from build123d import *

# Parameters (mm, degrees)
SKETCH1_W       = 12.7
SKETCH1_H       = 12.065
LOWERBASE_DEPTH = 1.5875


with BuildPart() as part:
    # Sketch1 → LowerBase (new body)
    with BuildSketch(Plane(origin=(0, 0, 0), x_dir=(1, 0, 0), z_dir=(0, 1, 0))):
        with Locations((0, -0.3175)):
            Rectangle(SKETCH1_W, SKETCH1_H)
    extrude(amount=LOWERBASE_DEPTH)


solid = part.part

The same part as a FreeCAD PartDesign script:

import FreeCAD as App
import Part
import Sketcher

V = App.Vector
Q = App.Units.Quantity


def add_polygon(sketch, points):
    """Adds a closed chain of lines whose ends are joined by coincident constraints."""
    first, n = sketch.GeometryCount, len(points)
    for a, b in zip(points, points[1:] + points[:1]):
        sketch.addGeometry(Part.LineSegment(App.Vector(*a, 0), App.Vector(*b, 0)), False)
    for i in range(n):
        sketch.addConstraint(Sketcher.Constraint("Coincident", first + i, 2, first + (i + 1) % n, 1))

doc = App.newDocument("Part")
body = doc.addObject("PartDesign::Body", "Body")

# Sketch on XZ plane
sketch1 = doc.addObject("Sketcher::SketchObject", "Sketch")
body.addObject(sketch1)
sketch1.AttachmentSupport = (doc.XZ_Plane, [""])
sketch1.MapMode = "FlatFace"
add_polygon(sketch1, [(-6, -6), (-6, 6), (6, 6), (6, -6)])  # lines 0-3
sketch1.addConstraint(Sketcher.Constraint("Vertical", 0))
sketch1.addConstraint(Sketcher.Constraint("Horizontal", 1))
sketch1.addConstraint(Sketcher.Constraint("Vertical", 2))
sketch1.addConstraint(Sketcher.Constraint("Horizontal", 3))
sketch1.addConstraint(Sketcher.Constraint("DistanceX", 1, 1, 1, 2, Q("0.5 in")))
sketch1.addConstraint(Sketcher.Constraint("DistanceY", 0, 1, 0, 2, Q("0.475 in")))
sketch1.addConstraint(Sketcher.Constraint("DistanceX", 0, 2, -1, 1, Q("0.25 in")))
sketch1.addConstraint(Sketcher.Constraint("DistanceY", -1, 1, 0, 2, Q("0.25 in")))
pad1 = doc.addObject("PartDesign::Pad", "Pad")
body.addObject(pad1)
pad1.Profile = sketch1
pad1.Length = Q("0.0625 in")
pad1.Reversed = True

doc.recompute()
